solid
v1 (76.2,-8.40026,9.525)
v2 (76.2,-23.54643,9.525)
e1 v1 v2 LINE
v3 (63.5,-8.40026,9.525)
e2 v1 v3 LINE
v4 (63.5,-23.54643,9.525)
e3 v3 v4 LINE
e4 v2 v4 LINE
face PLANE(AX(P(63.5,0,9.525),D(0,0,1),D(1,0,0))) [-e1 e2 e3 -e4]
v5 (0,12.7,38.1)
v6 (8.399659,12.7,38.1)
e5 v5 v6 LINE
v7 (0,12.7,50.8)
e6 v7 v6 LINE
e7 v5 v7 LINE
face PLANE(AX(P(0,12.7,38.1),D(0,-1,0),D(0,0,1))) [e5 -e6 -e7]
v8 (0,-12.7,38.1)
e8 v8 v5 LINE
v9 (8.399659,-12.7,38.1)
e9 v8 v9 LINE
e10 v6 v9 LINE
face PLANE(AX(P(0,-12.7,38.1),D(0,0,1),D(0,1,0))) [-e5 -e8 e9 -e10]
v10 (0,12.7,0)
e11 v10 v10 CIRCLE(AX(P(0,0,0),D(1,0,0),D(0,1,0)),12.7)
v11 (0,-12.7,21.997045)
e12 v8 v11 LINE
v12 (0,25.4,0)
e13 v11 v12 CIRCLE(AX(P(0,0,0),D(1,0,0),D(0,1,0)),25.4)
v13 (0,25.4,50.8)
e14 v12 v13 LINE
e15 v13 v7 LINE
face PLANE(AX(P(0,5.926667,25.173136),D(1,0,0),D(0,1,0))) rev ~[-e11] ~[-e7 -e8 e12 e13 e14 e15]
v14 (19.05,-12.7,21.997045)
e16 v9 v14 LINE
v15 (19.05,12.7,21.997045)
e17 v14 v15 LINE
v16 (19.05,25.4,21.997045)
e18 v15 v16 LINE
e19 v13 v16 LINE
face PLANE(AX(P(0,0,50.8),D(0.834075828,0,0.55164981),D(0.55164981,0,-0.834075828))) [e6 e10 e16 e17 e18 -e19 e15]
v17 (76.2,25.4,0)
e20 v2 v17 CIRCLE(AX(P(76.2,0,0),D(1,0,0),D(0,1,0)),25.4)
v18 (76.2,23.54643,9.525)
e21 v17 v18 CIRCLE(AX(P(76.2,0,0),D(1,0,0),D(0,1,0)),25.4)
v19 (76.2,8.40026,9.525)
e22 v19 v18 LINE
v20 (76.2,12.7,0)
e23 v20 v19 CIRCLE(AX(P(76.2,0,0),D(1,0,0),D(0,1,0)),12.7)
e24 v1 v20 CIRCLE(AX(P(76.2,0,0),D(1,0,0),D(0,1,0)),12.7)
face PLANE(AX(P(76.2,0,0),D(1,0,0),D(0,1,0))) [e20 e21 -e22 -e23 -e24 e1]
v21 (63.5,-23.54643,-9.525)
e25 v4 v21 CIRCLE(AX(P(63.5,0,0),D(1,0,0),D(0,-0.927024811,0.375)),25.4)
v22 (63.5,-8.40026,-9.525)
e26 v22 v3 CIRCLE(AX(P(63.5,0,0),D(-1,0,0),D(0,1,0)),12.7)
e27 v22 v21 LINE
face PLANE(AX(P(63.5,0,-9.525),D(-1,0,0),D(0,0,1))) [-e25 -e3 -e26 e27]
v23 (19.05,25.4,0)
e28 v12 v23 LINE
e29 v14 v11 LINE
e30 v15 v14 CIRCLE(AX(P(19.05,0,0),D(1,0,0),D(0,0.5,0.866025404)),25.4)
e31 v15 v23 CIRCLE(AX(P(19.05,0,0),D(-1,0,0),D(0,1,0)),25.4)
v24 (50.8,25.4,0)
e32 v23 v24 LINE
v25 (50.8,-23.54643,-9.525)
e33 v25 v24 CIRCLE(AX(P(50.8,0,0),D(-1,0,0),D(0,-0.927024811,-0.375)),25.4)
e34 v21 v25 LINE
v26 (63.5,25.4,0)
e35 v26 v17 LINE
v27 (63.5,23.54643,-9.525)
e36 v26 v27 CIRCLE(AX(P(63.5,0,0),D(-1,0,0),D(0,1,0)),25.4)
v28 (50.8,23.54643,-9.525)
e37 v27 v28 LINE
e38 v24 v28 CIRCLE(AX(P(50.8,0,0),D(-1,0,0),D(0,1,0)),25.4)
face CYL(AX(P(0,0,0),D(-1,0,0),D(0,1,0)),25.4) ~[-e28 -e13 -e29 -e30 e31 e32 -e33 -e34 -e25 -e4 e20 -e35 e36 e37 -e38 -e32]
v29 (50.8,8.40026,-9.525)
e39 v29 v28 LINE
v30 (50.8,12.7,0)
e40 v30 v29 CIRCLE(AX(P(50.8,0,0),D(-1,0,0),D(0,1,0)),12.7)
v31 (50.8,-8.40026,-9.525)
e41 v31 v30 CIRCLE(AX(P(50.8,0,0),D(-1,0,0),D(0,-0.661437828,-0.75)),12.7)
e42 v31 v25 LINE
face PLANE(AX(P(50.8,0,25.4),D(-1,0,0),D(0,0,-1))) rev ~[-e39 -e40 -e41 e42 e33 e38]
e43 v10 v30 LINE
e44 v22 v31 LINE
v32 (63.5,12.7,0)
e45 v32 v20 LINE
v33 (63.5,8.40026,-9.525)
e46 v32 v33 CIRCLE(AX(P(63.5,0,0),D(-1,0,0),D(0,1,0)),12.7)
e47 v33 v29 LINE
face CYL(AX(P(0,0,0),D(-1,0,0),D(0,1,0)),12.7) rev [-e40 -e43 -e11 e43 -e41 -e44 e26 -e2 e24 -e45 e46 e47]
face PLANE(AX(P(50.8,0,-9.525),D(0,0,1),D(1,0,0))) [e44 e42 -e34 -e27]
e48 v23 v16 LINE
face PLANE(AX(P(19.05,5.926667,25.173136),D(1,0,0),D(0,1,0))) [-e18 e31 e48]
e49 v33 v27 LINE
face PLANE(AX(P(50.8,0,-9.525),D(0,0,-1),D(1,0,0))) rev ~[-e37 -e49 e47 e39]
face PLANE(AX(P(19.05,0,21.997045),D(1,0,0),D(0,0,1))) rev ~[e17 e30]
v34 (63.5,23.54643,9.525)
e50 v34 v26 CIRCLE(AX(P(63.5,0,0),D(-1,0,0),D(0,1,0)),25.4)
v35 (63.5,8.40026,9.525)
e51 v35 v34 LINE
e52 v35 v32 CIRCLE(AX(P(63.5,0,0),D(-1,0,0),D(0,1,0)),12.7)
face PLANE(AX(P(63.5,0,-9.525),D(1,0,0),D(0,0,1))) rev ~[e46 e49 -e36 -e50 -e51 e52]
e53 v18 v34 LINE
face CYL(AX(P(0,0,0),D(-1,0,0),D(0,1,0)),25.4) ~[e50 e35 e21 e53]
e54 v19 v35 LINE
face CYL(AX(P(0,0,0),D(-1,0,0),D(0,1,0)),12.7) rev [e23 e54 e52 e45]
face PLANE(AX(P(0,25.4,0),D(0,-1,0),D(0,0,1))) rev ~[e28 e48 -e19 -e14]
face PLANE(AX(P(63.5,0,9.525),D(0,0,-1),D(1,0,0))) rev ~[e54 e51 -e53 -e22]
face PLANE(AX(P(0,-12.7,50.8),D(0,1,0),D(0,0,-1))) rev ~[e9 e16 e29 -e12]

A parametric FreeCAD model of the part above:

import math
import FreeCAD as App
import Part
import Sketcher
from FreeCAD import Vector
Q = App.Units.Quantity


def add_polygon(sketch, points):
    """Adds a closed chain of lines whose ends are joined by coincident constraints."""
    first, n = sketch.GeometryCount, len(points)
    for a, b in zip(points, points[1:] + points[:1]):
        sketch.addGeometry(Part.LineSegment(App.Vector(*a, 0), App.Vector(*b, 0)), False)
    for i in range(n):
        sketch.addConstraint(Sketcher.Constraint("Coincident", first + i, 2, first + (i + 1) % n, 1))

doc = App.newDocument("Part")
params = doc.addObject("Spreadsheet::Sheet", "Params")
for row, (alias, value) in enumerate([
    ("sketch1_diameter", "2 in"),
    ("sketch1_diameter2", "1 in"),
    ("pad1_length", "3 in"),
    ("sketch2_width", "1 in"),
    ("sketch2_height", "0.75 in"),
    ("sketch2_height2", "1.375 in"),
    ("sketch3_radius", "0.5 in"),
    ("sketch3_height", "2 in"),
    ("sketch3_width", "0.5 in"),
    ("pad2_length", "0.75 in"),
    ("sketch4_width", "1 in"),
    ("sketch4_height", "0.5 in"),
    ("pocket2_length", "1 in"),
    ("sketch5_width", "0.75 in"),
], start=1):
    params.set(f"A{row}", alias)
    params.set(f"B{row}", "=" + value)
    params.setAlias(f"B{row}", alias)

body = doc.addObject("PartDesign::Body", "Body")

sketch1 = doc.addObject("Sketcher::SketchObject", "Sketch")
body.addObject(sketch1)
sketch1.AttachmentSupport = (doc.YZ_Plane, [""])
sketch1.MapMode = "FlatFace"
sketch1.addGeometry(Part.Circle(Vector(0, 0, 0), Vector(0, 0, 1), 25), False)
sketch1.addGeometry(Part.Circle(Vector(0, 0, 0), Vector(0, 0, 1), 13), False)
sketch1.addConstraint(Sketcher.Constraint("Coincident", 0, 3, -1, 1))
sketch1.addConstraint(Sketcher.Constraint("Coincident", 1, 3, -1, 1))
sketch1.addConstraint(Sketcher.Constraint("Diameter", 0, Q("2 in")))
sketch1.addConstraint(Sketcher.Constraint("Diameter", 1, Q("1 in")))
sketch1.setExpression("Constraints[2]", "Params.sketch1_diameter")
sketch1.setExpression("Constraints[3]", "Params.sketch1_diameter2")
pad1 = doc.addObject("PartDesign::Pad", "Pad")
body.addObject(pad1)
pad1.Profile = sketch1
pad1.setExpression("Length", "Params.pad1_length")

sketch2 = doc.addObject("Sketcher::SketchObject", "Sketch001")
body.addObject(sketch2)
sketch2.AttachmentSupport = (doc.XZ_Plane, [""])
sketch2.MapMode = "FlatFace"
add_polygon(sketch2, [(76, 25), (51, 25), (51, -10), (64, -10), (64, 10), (76, 10)])
sketch2.addConstraint(Sketcher.Constraint("Horizontal", 0))
sketch2.addConstraint(Sketcher.Constraint("Vertical", 1))
sketch2.addConstraint(Sketcher.Constraint("Horizontal", 2))
sketch2.addConstraint(Sketcher.Constraint("Vertical", 3))
sketch2.addConstraint(Sketcher.Constraint("Horizontal", 4))
sketch2.addConstraint(Sketcher.Constraint("Vertical", 5))
sketch2.addConstraint(Sketcher.Constraint("Equal", 2, 4))
sketch2.addConstraint(Sketcher.Constraint("DistanceX", 0, 2, 0, 1, Q("1 in")))
sketch2.addConstraint(Sketcher.Constraint("DistanceX", -1, 1, 0, 2, Q("2 in")))
sketch2.addConstraint(Sketcher.Constraint("DistanceY", -1, 1, 0, 2, Q("1 in")))
sketch2.addConstraint(Sketcher.Constraint("DistanceY", 3, 1, 3, 2, Q("0.75 in")))
sketch2.addConstraint(Sketcher.Constraint("DistanceY", 1, 2, 1, 1, Q("1.375 in")))
sketch2.setExpression("Constraints[13]", "Params.sketch2_width")
sketch2.setExpression("Constraints[16]", "Params.sketch2_height")
sketch2.setExpression("Constraints[17]", "Params.sketch2_height2")
pocket1 = doc.addObject("PartDesign::Pocket", "Pocket")
body.addObject(pocket1)
pocket1.Profile = sketch2
pocket1.Type = "ThroughAll"
pocket1.Midplane = True

sketch3 = doc.addObject("Sketcher::SketchObject", "Sketch002")
body.addObject(sketch3)
sketch3.AttachmentSupport = (doc.YZ_Plane, [""])
sketch3.MapMode = "FlatFace"
sketch3.addGeometry(Part.LineSegment(Vector(-13, 51, 0), Vector(-13, 0, 0)), False)
sketch3.addGeometry(Part.ArcOfCircle(Part.Circle(Vector(0, 0, 0), Vector(0, 0, 1), 13), math.radians(0), math.radians(180)), False)
sketch3.addGeometry(Part.LineSegment(Vector(13, 0, 0), Vector(25, 0, 0)), False)
sketch3.addGeometry(Part.LineSegment(Vector(25, 0, 0), Vector(25, 51, 0)), False)
sketch3.addGeometry(Part.LineSegment(Vector(25, 51, 0), Vector(-13, 51, 0)), False)
sketch3.addConstraint(Sketcher.Constraint("Tangent", 0, 2, 1, 2))
sketch3.addConstraint(Sketcher.Constraint("Coincident", 1, 1, 2, 1))
sketch3.addConstraint(Sketcher.Constraint("Coincident", 2, 2, 3, 1))
sketch3.addConstraint(Sketcher.Constraint("Coincident", 3, 2, 4, 1))
sketch3.addConstraint(Sketcher.Constraint("Coincident", 4, 2, 0, 1))
sketch3.addConstraint(Sketcher.Constraint("Vertical", 0))
sketch3.addConstraint(Sketcher.Constraint("Horizontal", 2))
sketch3.addConstraint(Sketcher.Constraint("Vertical", 3))
sketch3.addConstraint(Sketcher.Constraint("Horizontal", 4))
sketch3.addConstraint(Sketcher.Constraint("Coincident", 1, 3, -1, 1))
sketch3.addConstraint(Sketcher.Constraint("PointOnObject", 1, 1, -1))
sketch3.addConstraint(Sketcher.Constraint("Radius", 1, Q("0.5 in")))
sketch3.addConstraint(Sketcher.Constraint("DistanceY", 0, 2, 0, 1, Q("2 in")))
sketch3.addConstraint(Sketcher.Constraint("DistanceX", 2, 1, 2, 2, Q("0.5 in")))
sketch3.setExpression("Constraints[11]", "Params.sketch3_radius")
sketch3.setExpression("Constraints[12]", "Params.sketch3_height")
sketch3.setExpression("Constraints[13]", "Params.sketch3_width")
pad2 = doc.addObject("PartDesign::Pad", "Pad001")
body.addObject(pad2)
pad2.Profile = sketch3
pad2.setExpression("Length", "Params.pad2_length")

sketch4 = doc.addObject("Sketcher::SketchObject", "Sketch003")
body.addObject(sketch4)
sketch4.AttachmentSupport = (doc.YZ_Plane, [""])
sketch4.MapMode = "FlatFace"
add_polygon(sketch4, [(-13, 51), (-13, 38), (13, 38), (13, 51)])
sketch4.addConstraint(Sketcher.Constraint("Vertical", 0))
sketch4.addConstraint(Sketcher.Constraint("Horizontal", 1))
sketch4.addConstraint(Sketcher.Constraint("Vertical", 2))
sketch4.addConstraint(Sketcher.Constraint("Horizontal", 3))
sketch4.addConstraint(Sketcher.Constraint("DistanceX", 1, 1, 1, 2, Q("1 in")))
sketch4.addConstraint(Sketcher.Constraint("DistanceY", 0, 2, 0, 1, Q("0.5 in")))
sketch4.addConstraint(Sketcher.Constraint("DistanceY", -1, 1, 2, 2, Q("2 in")))
sketch4.addConstraint(Sketcher.Constraint("DistanceX", 0, 2, -1, 1, Q("0.5 in")))
sketch4.setExpression("Constraints[8]", "Params.sketch4_width")
sketch4.setExpression("Constraints[9]", "Params.sketch4_height")
pocket2 = doc.addObject("PartDesign::Pocket", "Pocket001")
body.addObject(pocket2)
pocket2.Profile = sketch4
pocket2.setExpression("Length", "Params.pocket2_length")
pocket2.Reversed = True

sketch5 = doc.addObject("Sketcher::SketchObject", "Sketch004")
body.addObject(sketch5)
sketch5.AttachmentSupport = (doc.XZ_Plane, [""])
sketch5.MapMode = "FlatFace"
add_polygon(sketch5, [(19, 51), (0, 51), (19, 22)])
sketch5.addConstraint(Sketcher.Constraint("Horizontal", 0))
sketch5.addConstraint(Sketcher.Constraint("Vertical", 2))
sketch5.addConstraint(Sketcher.Constraint("PointOnObject", 0, 2, -2))
sketch5.addConstraint(Sketcher.Constraint("DistanceY", -1, 1, 0, 2, Q("2 in")))
sketch5.addConstraint(Sketcher.Constraint("DistanceX", 0, 2, 0, 1, Q("0.75 in")))
sketch5.addConstraint(Sketcher.Constraint("DistanceY", 2, 1, 2, 2, Q("28.802955 mm")))
sketch5.setExpression("Constraints[7]", "Params.sketch5_width")
pocket3 = doc.addObject("PartDesign::Pocket", "Pocket002")
body.addObject(pocket3)
pocket3.Profile = sketch5
pocket3.Type = "ThroughAll"
pocket3.Midplane = True

doc.recompute()
